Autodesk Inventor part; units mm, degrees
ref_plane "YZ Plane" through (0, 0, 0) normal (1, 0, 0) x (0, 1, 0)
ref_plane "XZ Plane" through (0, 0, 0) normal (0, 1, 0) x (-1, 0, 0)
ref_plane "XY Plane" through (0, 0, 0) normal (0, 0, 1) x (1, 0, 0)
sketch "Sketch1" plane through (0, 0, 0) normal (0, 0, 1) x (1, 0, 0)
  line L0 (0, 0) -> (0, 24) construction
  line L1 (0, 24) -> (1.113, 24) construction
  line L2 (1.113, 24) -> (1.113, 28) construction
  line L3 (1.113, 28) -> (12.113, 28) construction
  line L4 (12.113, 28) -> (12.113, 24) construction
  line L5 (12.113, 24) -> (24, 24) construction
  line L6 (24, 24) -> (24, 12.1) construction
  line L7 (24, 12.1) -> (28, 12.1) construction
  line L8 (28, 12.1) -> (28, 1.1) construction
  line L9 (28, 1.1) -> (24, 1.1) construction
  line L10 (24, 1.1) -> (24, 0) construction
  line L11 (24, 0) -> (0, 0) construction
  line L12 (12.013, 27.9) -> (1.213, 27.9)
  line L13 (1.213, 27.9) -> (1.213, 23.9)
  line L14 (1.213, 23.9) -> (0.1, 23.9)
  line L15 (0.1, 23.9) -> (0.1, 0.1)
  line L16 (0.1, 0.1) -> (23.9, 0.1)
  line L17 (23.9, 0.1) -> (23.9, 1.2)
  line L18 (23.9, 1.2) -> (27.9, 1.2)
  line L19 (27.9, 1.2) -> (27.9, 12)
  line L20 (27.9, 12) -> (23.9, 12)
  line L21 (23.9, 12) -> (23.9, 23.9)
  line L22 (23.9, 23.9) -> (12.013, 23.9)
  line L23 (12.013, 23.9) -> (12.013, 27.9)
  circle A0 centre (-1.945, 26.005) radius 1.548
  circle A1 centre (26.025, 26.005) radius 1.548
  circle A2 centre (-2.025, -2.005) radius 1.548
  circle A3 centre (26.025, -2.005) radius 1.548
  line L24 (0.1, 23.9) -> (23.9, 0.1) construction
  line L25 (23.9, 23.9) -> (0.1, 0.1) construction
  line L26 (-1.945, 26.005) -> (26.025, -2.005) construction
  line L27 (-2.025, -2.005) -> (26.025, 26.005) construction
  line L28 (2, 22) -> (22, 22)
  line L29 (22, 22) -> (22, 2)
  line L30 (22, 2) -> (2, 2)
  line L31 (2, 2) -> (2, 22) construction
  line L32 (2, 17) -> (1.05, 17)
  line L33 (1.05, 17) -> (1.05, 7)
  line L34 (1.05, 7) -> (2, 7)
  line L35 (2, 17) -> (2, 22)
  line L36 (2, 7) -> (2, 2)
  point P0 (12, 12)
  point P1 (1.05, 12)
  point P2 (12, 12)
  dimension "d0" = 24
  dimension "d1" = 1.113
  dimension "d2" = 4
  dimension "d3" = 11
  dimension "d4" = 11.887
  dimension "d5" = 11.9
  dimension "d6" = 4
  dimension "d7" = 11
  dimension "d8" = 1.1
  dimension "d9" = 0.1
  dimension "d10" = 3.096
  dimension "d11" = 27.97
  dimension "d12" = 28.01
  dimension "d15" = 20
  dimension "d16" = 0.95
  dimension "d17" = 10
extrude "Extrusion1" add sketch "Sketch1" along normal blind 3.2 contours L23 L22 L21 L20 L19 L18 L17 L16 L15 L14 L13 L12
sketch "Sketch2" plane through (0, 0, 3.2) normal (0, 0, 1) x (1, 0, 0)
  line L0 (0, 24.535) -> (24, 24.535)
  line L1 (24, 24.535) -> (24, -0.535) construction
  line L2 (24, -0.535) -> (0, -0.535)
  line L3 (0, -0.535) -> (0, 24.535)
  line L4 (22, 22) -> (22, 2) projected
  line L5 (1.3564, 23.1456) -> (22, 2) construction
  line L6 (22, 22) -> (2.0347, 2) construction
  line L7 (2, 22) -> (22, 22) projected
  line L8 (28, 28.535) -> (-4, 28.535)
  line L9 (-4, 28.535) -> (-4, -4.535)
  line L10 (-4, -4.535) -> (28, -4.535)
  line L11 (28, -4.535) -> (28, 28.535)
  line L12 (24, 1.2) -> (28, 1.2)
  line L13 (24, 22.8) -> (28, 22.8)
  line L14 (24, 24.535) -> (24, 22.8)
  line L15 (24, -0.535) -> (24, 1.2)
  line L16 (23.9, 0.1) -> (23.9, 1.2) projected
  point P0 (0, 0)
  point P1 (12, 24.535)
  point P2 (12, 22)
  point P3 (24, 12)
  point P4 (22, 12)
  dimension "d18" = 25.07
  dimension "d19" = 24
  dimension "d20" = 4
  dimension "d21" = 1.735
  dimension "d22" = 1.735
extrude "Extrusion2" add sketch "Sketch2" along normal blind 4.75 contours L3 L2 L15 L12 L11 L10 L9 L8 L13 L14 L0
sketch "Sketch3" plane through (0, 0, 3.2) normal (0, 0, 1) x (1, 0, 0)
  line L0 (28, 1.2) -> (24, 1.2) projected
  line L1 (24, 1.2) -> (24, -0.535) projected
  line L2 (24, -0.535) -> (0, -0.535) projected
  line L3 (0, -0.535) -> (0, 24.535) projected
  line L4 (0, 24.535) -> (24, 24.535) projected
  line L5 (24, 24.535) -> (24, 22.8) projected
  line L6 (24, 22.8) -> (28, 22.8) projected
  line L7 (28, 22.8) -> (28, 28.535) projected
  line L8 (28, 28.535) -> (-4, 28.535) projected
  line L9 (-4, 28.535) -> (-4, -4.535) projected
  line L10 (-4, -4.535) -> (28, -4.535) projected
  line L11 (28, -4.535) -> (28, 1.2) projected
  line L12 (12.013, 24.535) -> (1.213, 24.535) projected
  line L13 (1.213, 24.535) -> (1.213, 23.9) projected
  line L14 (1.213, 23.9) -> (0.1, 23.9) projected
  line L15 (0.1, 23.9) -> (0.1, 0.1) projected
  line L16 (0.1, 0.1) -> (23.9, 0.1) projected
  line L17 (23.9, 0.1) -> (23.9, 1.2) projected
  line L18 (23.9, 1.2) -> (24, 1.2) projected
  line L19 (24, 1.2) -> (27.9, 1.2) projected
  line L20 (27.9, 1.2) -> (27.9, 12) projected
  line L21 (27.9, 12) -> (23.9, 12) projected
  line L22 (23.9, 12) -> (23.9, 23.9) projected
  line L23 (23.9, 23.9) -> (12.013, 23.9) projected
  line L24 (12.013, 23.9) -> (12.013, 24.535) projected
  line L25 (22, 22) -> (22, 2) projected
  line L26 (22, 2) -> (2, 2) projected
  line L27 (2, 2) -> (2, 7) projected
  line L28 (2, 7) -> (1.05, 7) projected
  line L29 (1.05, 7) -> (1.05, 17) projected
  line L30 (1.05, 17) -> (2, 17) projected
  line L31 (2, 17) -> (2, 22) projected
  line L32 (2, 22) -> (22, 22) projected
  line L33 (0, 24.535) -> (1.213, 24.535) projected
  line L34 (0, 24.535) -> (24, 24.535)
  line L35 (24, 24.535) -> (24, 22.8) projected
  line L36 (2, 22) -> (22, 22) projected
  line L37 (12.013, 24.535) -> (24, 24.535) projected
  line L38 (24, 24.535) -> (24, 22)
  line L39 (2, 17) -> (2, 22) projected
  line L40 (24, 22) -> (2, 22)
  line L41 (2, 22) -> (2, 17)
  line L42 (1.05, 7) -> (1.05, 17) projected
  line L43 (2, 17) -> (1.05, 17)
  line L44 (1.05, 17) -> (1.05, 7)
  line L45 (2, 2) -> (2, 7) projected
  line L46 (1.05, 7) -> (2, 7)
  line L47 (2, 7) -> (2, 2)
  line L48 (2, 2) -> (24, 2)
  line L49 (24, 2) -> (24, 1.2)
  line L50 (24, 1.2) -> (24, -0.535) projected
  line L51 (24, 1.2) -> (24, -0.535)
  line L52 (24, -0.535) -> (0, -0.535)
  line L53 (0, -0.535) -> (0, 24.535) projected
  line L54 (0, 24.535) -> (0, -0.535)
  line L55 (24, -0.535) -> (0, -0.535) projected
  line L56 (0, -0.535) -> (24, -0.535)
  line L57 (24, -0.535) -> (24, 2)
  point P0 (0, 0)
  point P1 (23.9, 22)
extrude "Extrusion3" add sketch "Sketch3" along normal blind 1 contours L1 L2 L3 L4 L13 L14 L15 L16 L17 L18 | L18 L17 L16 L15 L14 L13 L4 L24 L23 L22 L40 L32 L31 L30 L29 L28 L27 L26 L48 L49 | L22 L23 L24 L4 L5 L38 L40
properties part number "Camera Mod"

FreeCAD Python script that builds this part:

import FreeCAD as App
import Part
import Sketcher
from FreeCAD import Vector
Q = App.Units.Quantity


def add_polygon(sketch, points):
    """Adds a closed chain of lines whose ends are joined by coincident constraints."""
    first, n = sketch.GeometryCount, len(points)
    for a, b in zip(points, points[1:] + points[:1]):
        sketch.addGeometry(Part.LineSegment(App.Vector(*a, 0), App.Vector(*b, 0)), False)
    for i in range(n):
        sketch.addConstraint(Sketcher.Constraint("Coincident", first + i, 2, first + (i + 1) % n, 1))

doc = App.newDocument("Part")
body = doc.addObject("PartDesign::Body", "Body")

sketch1 = body.newObject("Sketcher::SketchObject", "Sketch")
sketch1.AttachmentSupport = (doc.getObject("XY_Plane"), [""])
sketch1.MapMode = "FlatFace"
add_polygon(sketch1, [(12.013, 23.9), (12.013, 27.9), (1.213, 27.9), (1.213, 23.9), (0.1, 23.9), (0.1, 0.1), (23.9, 0.1), (23.9, 1.2), (27.9, 1.2), (27.9, 12), (23.9, 12), (23.9, 23.9)])
add_polygon(sketch1, [(2, 17), (2, 22), (22, 22), (22, 2), (2, 2), (2, 7), (1.05, 7), (1.05, 17)])
sketch1.addConstraint(Sketcher.Constraint("Vertical", 0))
sketch1.addConstraint(Sketcher.Constraint("Horizontal", 1))
sketch1.addConstraint(Sketcher.Constraint("Vertical", 2))
sketch1.addConstraint(Sketcher.Constraint("Horizontal", 3))
sketch1.addConstraint(Sketcher.Constraint("Vertical", 4))
sketch1.addConstraint(Sketcher.Constraint("Horizontal", 5))
sketch1.addConstraint(Sketcher.Constraint("Vertical", 6))
sketch1.addConstraint(Sketcher.Constraint("Horizontal", 7))
sketch1.addConstraint(Sketcher.Constraint("Vertical", 8))
sketch1.addConstraint(Sketcher.Constraint("Horizontal", 9))
sketch1.addConstraint(Sketcher.Constraint("Vertical", 10))
sketch1.addConstraint(Sketcher.Constraint("Horizontal", 11))
sketch1.addConstraint(Sketcher.Constraint("Vertical", 12))
sketch1.addConstraint(Sketcher.Constraint("Horizontal", 13))
sketch1.addConstraint(Sketcher.Constraint("Vertical", 14))
sketch1.addConstraint(Sketcher.Constraint("Horizontal", 15))
sketch1.addConstraint(Sketcher.Constraint("Vertical", 16))
sketch1.addConstraint(Sketcher.Constraint("Horizontal", 17))
sketch1.addConstraint(Sketcher.Constraint("Vertical", 18))
sketch1.addConstraint(Sketcher.Constraint("Horizontal", 19))
sketch1.addConstraint(Sketcher.Constraint("Horizontal", 3, 2, 10, 2))
sketch1.addConstraint(Sketcher.Constraint("Vertical", 6, 2, 9, 2))
sketch1.addConstraint(Sketcher.Constraint("Vertical", 12, 2, 15, 2))
sketch1.addConstraint(Sketcher.Constraint("Equal", 9, 0))
sketch1.addConstraint(Sketcher.Constraint("Equal", 5, 4))
sketch1.addConstraint(Sketcher.Constraint("Equal", 1, 8))
sketch1.addConstraint(Sketcher.Constraint("Equal", 15, 14))
sketch1.addConstraint(Sketcher.Constraint("Equal", 12, 16))
sketch1.addConstraint(Sketcher.Constraint("DistanceX", 7, 1, 7, 2, Q("4 mm")))
sketch1.addConstraint(Sketcher.Constraint("DistanceX", 13, 1, 13, 2, Q("20 mm")))
sketch1.addConstraint(Sketcher.Constraint("DistanceY", 18, 1, 18, 2, Q("10 mm")))
sketch1.addConstraint(Sketcher.Constraint("DistanceY", 6, 1, 6, 2, Q("1.1 mm")))
sketch1.addConstraint(Sketcher.Constraint("DistanceY", 10, 1, 10, 2, Q("11.9 mm")))
sketch1.addConstraint(Sketcher.Constraint("DistanceY", 9, 2, 13, 2, Q("10 mm")))
sketch1.addConstraint(Sketcher.Constraint("DistanceX", 17, 2, 17, 1, Q("0.95 mm")))
sketch1.addConstraint(Sketcher.Constraint("DistanceX", -1, 1, 3, 2, Q("0.1 mm")))
sketch1.addConstraint(Sketcher.Constraint("DistanceY", -1, 1, 4, 2, Q("0.1 mm")))
sketch1.addConstraint(Sketcher.Constraint("DistanceY", 5, 2, 8, 2, Q("11.9 mm")))
sketch1.addConstraint(Sketcher.Constraint("DistanceX", 3, 2, 3, 1, Q("1.113 mm")))
sketch1.addConstraint(Sketcher.Constraint("DistanceX", 4, 2, 17, 2, Q("0.95 mm")))
pad1 = body.newObject("PartDesign::Pad", "Pad")
pad1.Profile = sketch1
pad1.Length = 3.2

sketch2 = body.newObject("Sketcher::SketchObject", "Sketch001")
sketch2.AttachmentSupport = (doc.getObject("XY_Plane"), [""])
sketch2.MapMode = "FlatFace"
sketch2.AttachmentOffset = App.Placement(Vector(0, 0, 3.2), App.Rotation())
add_polygon(sketch2, [(0, -0.535), (0, 24.535), (24, 24.535), (24, 22.8), (28, 22.8), (28, 28.535), (-4, 28.535), (-4, -4.535), (28, -4.535), (28, 1.2), (24, 1.2), (24, -0.535)])
sketch2.addConstraint(Sketcher.Constraint("Vertical", 0))
sketch2.addConstraint(Sketcher.Constraint("Horizontal", 1))
sketch2.addConstraint(Sketcher.Constraint("Vertical", 2))
sketch2.addConstraint(Sketcher.Constraint("Horizontal", 3))
sketch2.addConstraint(Sketcher.Constraint("Vertical", 4))
sketch2.addConstraint(Sketcher.Constraint("Horizontal", 5))
sketch2.addConstraint(Sketcher.Constraint("Vertical", 6))
sketch2.addConstraint(Sketcher.Constraint("Horizontal", 7))
sketch2.addConstraint(Sketcher.Constraint("Vertical", 8))
sketch2.addConstraint(Sketcher.Constraint("Horizontal", 9))
sketch2.addConstraint(Sketcher.Constraint("Vertical", 10))
sketch2.addConstraint(Sketcher.Constraint("Horizontal", 11))
sketch2.addConstraint(Sketcher.Constraint("PointOnObject", 0, 2, -2))
sketch2.addConstraint(Sketcher.Constraint("Vertical", 4, 2, 7, 2))
sketch2.addConstraint(Sketcher.Constraint("Vertical", 2, 2, 9, 2))
sketch2.addConstraint(Sketcher.Constraint("Equal", 4, 8))
sketch2.addConstraint(Sketcher.Constraint("Equal", 2, 10))
sketch2.addConstraint(Sketcher.Constraint("DistanceX", 1, 1, 1, 2, Q("24 mm")))
sketch2.addConstraint(Sketcher.Constraint("DistanceX", 3, 1, 3, 2, Q("4 mm")))
sketch2.addConstraint(Sketcher.Constraint("DistanceX", 5, 2, -1, 1, Q("4 mm")))
sketch2.addConstraint(Sketcher.Constraint("DistanceY", 1, 2, 4, 2, Q("4 mm")))
sketch2.addConstraint(Sketcher.Constraint("DistanceY", 0, 1, 0, 2, Q("25.07 mm")))
sketch2.addConstraint(Sketcher.Constraint("DistanceY", 2, 2, 2, 1, Q("1.735 mm")))
sketch2.addConstraint(Sketcher.Constraint("DistanceY", -1, 1, 2, 2, Q("22.8 mm")))
pad2 = body.newObject("PartDesign::Pad", "Pad001")
pad2.Profile = sketch2
pad2.Length = 4.75

sketch3 = body.newObject("Sketcher::SketchObject", "Sketch002")
sketch3.AttachmentSupport = (doc.getObject("XY_Plane"), [""])
sketch3.MapMode = "FlatFace"
sketch3.AttachmentOffset = App.Placement(Vector(0, 0, 3.2), App.Rotation())
add_polygon(sketch3, [(24, -0.535), (24, 2), (2, 2), (2, 7), (1.05, 7), (1.05, 17), (2, 17), (2, 22), (24, 22), (24, 24.535), (0, 24.535), (0, -0.535)])
sketch3.addConstraint(Sketcher.Constraint("Vertical", 0))
sketch3.addConstraint(Sketcher.Constraint("Horizontal", 1))
sketch3.addConstraint(Sketcher.Constraint("Vertical", 2))
sketch3.addConstraint(Sketcher.Constraint("Horizontal", 3))
sketch3.addConstraint(Sketcher.Constraint("Vertical", 4))
sketch3.addConstraint(Sketcher.Constraint("Horizontal", 5))
sketch3.addConstraint(Sketcher.Constraint("Vertical", 6))
sketch3.addConstraint(Sketcher.Constraint("Horizontal", 7))
sketch3.addConstraint(Sketcher.Constraint("Vertical", 8))
sketch3.addConstraint(Sketcher.Constraint("Horizontal", 9))
sketch3.addConstraint(Sketcher.Constraint("Vertical", 10))
sketch3.addConstraint(Sketcher.Constraint("Horizontal", 11))
sketch3.addConstraint(Sketcher.Constraint("PointOnObject", 9, 2, -2))
sketch3.addConstraint(Sketcher.Constraint("Vertical", 2, 2, 5, 2))
sketch3.addConstraint(Sketcher.Constraint("Vertical", 0, 2, 7, 2))
sketch3.addConstraint(Sketcher.Constraint("Equal", 2, 6))
sketch3.addConstraint(Sketcher.Constraint("Equal", 0, 8))
sketch3.addConstraint(Sketcher.Constraint("DistanceX", 1, 2, 1, 1, Q("22 mm")))
sketch3.addConstraint(Sketcher.Constraint("DistanceX", 9, 2, 9, 1, Q("24 mm")))
sketch3.addConstraint(Sketcher.Constraint("DistanceY", 2, 1, 2, 2, Q("5 mm")))
sketch3.addConstraint(Sketcher.Constraint("DistanceY", 4, 1, 4, 2, Q("10 mm")))
sketch3.addConstraint(Sketcher.Constraint("DistanceY", -1, 1, 0, 2, Q("2 mm")))
sketch3.addConstraint(Sketcher.Constraint("DistanceX", 3, 2, 3, 1, Q("0.95 mm")))
sketch3.addConstraint(Sketcher.Constraint("DistanceY", 10, 2, 10, 1, Q("25.07 mm")))
pad3 = body.newObject("PartDesign::Pad", "Pad002")
pad3.Profile = sketch3
pad3.Length = 1

doc.recompute()
